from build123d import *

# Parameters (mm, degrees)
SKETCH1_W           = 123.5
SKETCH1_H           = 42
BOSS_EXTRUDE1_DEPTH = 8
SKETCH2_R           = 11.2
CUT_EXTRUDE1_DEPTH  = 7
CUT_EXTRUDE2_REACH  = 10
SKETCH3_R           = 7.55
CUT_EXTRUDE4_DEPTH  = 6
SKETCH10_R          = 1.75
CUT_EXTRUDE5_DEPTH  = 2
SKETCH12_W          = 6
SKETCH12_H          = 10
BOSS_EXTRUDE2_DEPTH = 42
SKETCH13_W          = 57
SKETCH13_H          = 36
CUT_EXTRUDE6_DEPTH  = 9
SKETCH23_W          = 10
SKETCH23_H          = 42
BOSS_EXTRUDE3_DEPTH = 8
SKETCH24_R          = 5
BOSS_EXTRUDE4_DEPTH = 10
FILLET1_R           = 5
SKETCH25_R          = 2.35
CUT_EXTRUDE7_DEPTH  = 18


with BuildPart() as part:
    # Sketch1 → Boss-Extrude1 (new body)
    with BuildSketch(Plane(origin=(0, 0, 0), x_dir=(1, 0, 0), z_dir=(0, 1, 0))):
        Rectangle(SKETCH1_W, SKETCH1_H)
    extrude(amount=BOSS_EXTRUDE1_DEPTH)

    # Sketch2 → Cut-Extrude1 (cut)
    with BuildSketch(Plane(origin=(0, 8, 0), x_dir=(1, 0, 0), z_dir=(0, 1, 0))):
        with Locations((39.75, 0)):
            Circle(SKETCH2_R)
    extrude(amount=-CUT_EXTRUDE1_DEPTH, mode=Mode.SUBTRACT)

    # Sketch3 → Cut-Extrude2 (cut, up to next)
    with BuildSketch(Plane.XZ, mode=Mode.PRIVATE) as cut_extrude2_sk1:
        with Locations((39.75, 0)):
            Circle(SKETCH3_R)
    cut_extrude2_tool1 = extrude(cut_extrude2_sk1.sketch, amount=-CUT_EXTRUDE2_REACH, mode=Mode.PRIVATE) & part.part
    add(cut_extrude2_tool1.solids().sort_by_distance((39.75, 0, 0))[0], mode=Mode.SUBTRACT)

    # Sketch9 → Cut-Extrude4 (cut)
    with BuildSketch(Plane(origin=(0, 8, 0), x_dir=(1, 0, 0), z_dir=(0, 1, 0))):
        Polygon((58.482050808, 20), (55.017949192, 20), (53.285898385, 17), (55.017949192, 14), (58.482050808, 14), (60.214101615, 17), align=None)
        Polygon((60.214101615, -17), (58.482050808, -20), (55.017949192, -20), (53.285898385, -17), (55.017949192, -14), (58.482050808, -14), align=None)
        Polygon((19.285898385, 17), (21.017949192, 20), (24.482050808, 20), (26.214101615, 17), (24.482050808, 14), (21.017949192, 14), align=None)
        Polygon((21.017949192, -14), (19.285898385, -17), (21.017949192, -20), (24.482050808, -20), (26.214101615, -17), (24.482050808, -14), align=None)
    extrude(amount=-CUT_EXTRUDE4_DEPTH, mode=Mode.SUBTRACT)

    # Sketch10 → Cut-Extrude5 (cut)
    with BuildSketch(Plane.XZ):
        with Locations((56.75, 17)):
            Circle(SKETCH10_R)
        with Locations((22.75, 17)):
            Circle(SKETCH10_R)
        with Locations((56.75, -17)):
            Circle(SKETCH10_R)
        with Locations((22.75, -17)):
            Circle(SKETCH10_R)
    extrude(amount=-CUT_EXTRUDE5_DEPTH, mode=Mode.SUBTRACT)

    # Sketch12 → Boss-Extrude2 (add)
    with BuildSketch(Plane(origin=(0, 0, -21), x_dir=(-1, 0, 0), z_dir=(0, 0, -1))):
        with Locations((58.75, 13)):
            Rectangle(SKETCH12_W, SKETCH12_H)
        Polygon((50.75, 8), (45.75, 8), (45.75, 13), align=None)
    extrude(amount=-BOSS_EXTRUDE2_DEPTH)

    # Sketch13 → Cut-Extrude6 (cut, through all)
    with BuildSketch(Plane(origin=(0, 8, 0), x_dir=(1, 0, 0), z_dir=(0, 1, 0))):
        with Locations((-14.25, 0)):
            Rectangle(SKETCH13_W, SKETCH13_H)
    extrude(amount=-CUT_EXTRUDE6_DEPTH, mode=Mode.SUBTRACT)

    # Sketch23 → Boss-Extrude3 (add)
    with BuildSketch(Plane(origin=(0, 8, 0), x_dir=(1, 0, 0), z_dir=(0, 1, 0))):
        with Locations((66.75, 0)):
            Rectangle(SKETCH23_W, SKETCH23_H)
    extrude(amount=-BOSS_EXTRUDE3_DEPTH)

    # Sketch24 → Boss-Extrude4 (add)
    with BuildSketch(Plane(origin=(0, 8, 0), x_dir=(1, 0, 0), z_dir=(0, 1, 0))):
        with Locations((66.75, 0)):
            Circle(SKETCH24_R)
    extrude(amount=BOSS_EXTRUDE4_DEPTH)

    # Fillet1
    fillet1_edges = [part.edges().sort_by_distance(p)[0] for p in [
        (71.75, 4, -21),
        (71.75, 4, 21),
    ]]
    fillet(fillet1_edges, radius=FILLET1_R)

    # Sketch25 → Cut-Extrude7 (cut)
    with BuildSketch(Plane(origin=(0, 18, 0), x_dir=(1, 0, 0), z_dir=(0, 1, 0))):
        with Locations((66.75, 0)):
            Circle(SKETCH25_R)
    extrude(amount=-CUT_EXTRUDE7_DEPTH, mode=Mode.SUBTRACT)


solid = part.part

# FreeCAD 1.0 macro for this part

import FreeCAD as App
import Part
import Sketcher

V = App.Vector
Q = App.Units.Quantity


def edges_at(feature, points):
    """Names of the edges that pass closest to the given points."""
    edges = feature.Shape.Edges
    near = lambda p: min(range(len(edges)), key=lambda i: edges[i].distToShape(Part.Vertex(*p))[0])
    return sorted({f"Edge{near(p) + 1}" for p in points})

doc = App.newDocument("Part")
body = doc.addObject("PartDesign::Body", "Body")

# Sketch on XZ plane
sketch1 = body.newObject("Sketcher::SketchObject", "Sketch")
sketch1.AttachmentSupport = (doc.getObject("XZ_Plane"), [""])
sketch1.MapMode = "FlatFace"
sketch1.addGeometry([
    Part.LineSegment(V(-62, -21, 0), V(-62, 21, 0)),
    Part.LineSegment(V(-62, 21, 0), V(62, 21, 0)),
    Part.LineSegment(V(62, 21, 0), V(62, -21, 0)),
    Part.LineSegment(V(62, -21, 0), V(-62, -21, 0)),
], False)
sketch1.addConstraint([
    Sketcher.Constraint("Coincident", 0, 2, 1, 1),
    Sketcher.Constraint("Coincident", 1, 2, 2, 1),
    Sketcher.Constraint("Coincident", 2, 2, 3, 1),
    Sketcher.Constraint("Coincident", 3, 2, 0, 1),
    Sketcher.Constraint("Vertical", 0),
    Sketcher.Constraint("Horizontal", 1),
    Sketcher.Constraint("Vertical", 2),
    Sketcher.Constraint("Horizontal", 3),
    Sketcher.Constraint("Symmetric", 0, 2, 2, 2, -1, 1),
    Sketcher.Constraint("DistanceY", 0, 1, 0, 2, 42.0),
    Sketcher.Constraint("DistanceX", 1, 1, 1, 2, 123.5),
])
pad1 = body.newObject("PartDesign::Pad", "Pad")
pad1.Profile = sketch1
pad1.Length = 8
pad1.Reversed = True

# Sketch on XZ plane
sketch2 = body.newObject("Sketcher::SketchObject", "Sketch001")
sketch2.AttachmentSupport = (doc.getObject("XZ_Plane"), [""])
sketch2.MapMode = "FlatFace"
sketch2.AttachmentOffset = App.Placement(V(0, 0, -8), App.Rotation())
sketch2.addGeometry(Part.Circle(V(40, 0, 0), V(0, 0, 1), 11), False)
sketch2.addConstraint([
    Sketcher.Constraint("PointOnObject", 0, 3, -1),
    Sketcher.Constraint("Diameter", 0, 22.4),
    Sketcher.Constraint("DistanceX", -1, 1, 0, 3, 39.75),
])
pocket1 = body.newObject("PartDesign::Pocket", "Pocket")
pocket1.Profile = sketch2
pocket1.Length = 7
pocket1.Reversed = True

# Sketch on XZ plane
sketch3 = body.newObject("Sketcher::SketchObject", "Sketch002")
sketch3.AttachmentSupport = (doc.getObject("XZ_Plane"), [""])
sketch3.MapMode = "FlatFace"
sketch3.addGeometry(Part.Circle(V(40, 0, 0), V(0, 0, 1), 8), False)
sketch3.addConstraint([
    Sketcher.Constraint("PointOnObject", 0, 3, -1),
    Sketcher.Constraint("Diameter", 0, 15.1),
    Sketcher.Constraint("DistanceX", -1, 1, 0, 3, 39.75),
])
pocket2 = body.newObject("PartDesign::Pocket", "Pocket001")
pocket2.Profile = sketch3
pocket2.Type = "UpToFirst"

# Sketch on XZ plane
sketch4 = body.newObject("Sketcher::SketchObject", "Sketch003")
sketch4.AttachmentSupport = (doc.getObject("XZ_Plane"), [""])
sketch4.MapMode = "FlatFace"
sketch4.AttachmentOffset = App.Placement(V(0, 0, -8), App.Rotation())
sketch4.addGeometry([
    Part.LineSegment(V(58.5, -20, 0), V(55, -20, 0)),  # 0
    Part.LineSegment(V(55, -20, 0), V(53.3, -17, 0)),  # 1
    Part.LineSegment(V(53.3, -17, 0), V(55, -14, 0)),  # 2
    Part.LineSegment(V(55, -14, 0), V(58.5, -14, 0)),  # 3
    Part.LineSegment(V(58.5, -14, 0), V(60.2, -17, 0)),  # 4
    Part.LineSegment(V(60.2, -17, 0), V(58.5, -20, 0)),  # 5
    Part.LineSegment(V(58.5, 20, 0), V(60.2, 17, 0)),  # 6
    Part.LineSegment(V(60.2, 17, 0), V(58.5, 14, 0)),  # 7
    Part.LineSegment(V(58.5, 14, 0), V(55, 14, 0)),  # 8
    Part.LineSegment(V(55, 14, 0), V(53.3, 17, 0)),  # 9
    Part.LineSegment(V(53.3, 17, 0), V(55, 20, 0)),  # 10
    Part.LineSegment(V(55, 20, 0), V(58.5, 20, 0)),  # 11
    Part.LineSegment(V(21, -20, 0), V(19.3, -17, 0)),  # 12
    Part.LineSegment(V(19.3, -17, 0), V(21, -14, 0)),  # 13
    Part.LineSegment(V(21, -14, 0), V(24.5, -14, 0)),  # 14
    Part.LineSegment(V(24.5, -14, 0), V(26.2, -17, 0)),  # 15
    Part.LineSegment(V(26.2, -17, 0), V(24.5, -20, 0)),  # 16
    Part.LineSegment(V(24.5, -20, 0), V(21, -20, 0)),  # 17
    Part.LineSegment(V(21, 14, 0), V(19.3, 17, 0)),  # 18
    Part.LineSegment(V(19.3, 17, 0), V(21, 20, 0)),  # 19
    Part.LineSegment(V(21, 20, 0), V(24.5, 20, 0)),  # 20
    Part.LineSegment(V(24.5, 20, 0), V(26.2, 17, 0)),  # 21
    Part.LineSegment(V(26.2, 17, 0), V(24.5, 14, 0)),  # 22
    Part.LineSegment(V(24.5, 14, 0), V(21, 14, 0)),  # 23
], False)
sketch4.addConstraint([
    Sketcher.Constraint("Coincident", 0, 2, 1, 1),
    Sketcher.Constraint("Coincident", 1, 2, 2, 1),
    Sketcher.Constraint("Coincident", 2, 2, 3, 1),
    Sketcher.Constraint("Coincident", 3, 2, 4, 1),
    Sketcher.Constraint("Coincident", 4, 2, 5, 1),
    Sketcher.Constraint("Coincident", 5, 2, 0, 1),
    Sketcher.Constraint("Coincident", 6, 2, 7, 1),
    Sketcher.Constraint("Coincident", 7, 2, 8, 1),
    Sketcher.Constraint("Coincident", 8, 2, 9, 1),
    Sketcher.Constraint("Coincident", 9, 2, 10, 1),
    Sketcher.Constraint("Coincident", 10, 2, 11, 1),
    Sketcher.Constraint("Coincident", 11, 2, 6, 1),
    Sketcher.Constraint("Coincident", 12, 2, 13, 1),
    Sketcher.Constraint("Coincident", 13, 2, 14, 1),
    Sketcher.Constraint("Coincident", 14, 2, 15, 1),
    Sketcher.Constraint("Coincident", 15, 2, 16, 1),
    Sketcher.Constraint("Coincident", 16, 2, 17, 1),
    Sketcher.Constraint("Coincident", 17, 2, 12, 1),
    Sketcher.Constraint("Coincident", 18, 2, 19, 1),
    Sketcher.Constraint("Coincident", 19, 2, 20, 1),
    Sketcher.Constraint("Coincident", 20, 2, 21, 1),
    Sketcher.Constraint("Coincident", 21, 2, 22, 1),
    Sketcher.Constraint("Coincident", 22, 2, 23, 1),
    Sketcher.Constraint("Coincident", 23, 2, 18, 1),
    Sketcher.Constraint("Horizontal", 0),
    Sketcher.Constraint("Horizontal", 3),
    Sketcher.Constraint("Horizontal", 8),
    Sketcher.Constraint("Horizontal", 11),
    Sketcher.Constraint("Horizontal", 14),
    Sketcher.Constraint("Horizontal", 17),
    Sketcher.Constraint("Horizontal", 20),
    Sketcher.Constraint("Horizontal", 23),
    Sketcher.Constraint("Symmetric", 4, 2, 6, 2, -1),
    Sketcher.Constraint("Symmetric", 3, 2, 7, 2, -1),
    Sketcher.Constraint("Symmetric", 1, 2, 9, 2, -1),
    Sketcher.Constraint("Symmetric", 0, 2, 10, 2, -1),
    Sketcher.Constraint("Symmetric", 12, 2, 18, 2, -1),
    Sketcher.Constraint("Symmetric", 17, 2, 19, 2, -1),
    Sketcher.Constraint("Symmetric", 15, 2, 21, 2, -1),
    Sketcher.Constraint("Symmetric", 14, 2, 22, 2, -1),
    Sketcher.Constraint("Parallel", 1, 4),
    Sketcher.Constraint("Parallel", 2, 5),
    Sketcher.Constraint("Parallel", 4, 6),
    Sketcher.Constraint("Parallel", 5, 7),
    Sketcher.Constraint("Parallel", 6, 9),
    Sketcher.Constraint("Parallel", 9, 12),
    Sketcher.Constraint("Parallel", 10, 13),
    Sketcher.Constraint("Parallel", 12, 15),
    Sketcher.Constraint("Parallel", 13, 16),
    Sketcher.Constraint("Parallel", 15, 18),
    Sketcher.Constraint("Parallel", 18, 21),
    Sketcher.Constraint("Horizontal", 1, 2, 4, 2),
    Sketcher.Constraint("Horizontal", 4, 2, 12, 2),
    Sketcher.Constraint("Horizontal", 3, 2, 13, 2),
    Sketcher.Constraint("Horizontal", 12, 2, 15, 2),
    Sketcher.Constraint("Horizontal", 5, 2, 16, 2),
    Sketcher.Constraint("Vertical", 0, 2, 2, 2),
    Sketcher.Constraint("Equal", 11, 14),
    Sketcher.Constraint("Angle", 1, Q("120 deg")),
    Sketcher.Constraint("DistanceY", 0, 2, -1, 1, 20.0),
    Sketcher.Constraint("DistanceY", 1, 2, -1, 1, 17.0),
    Sketcher.Constraint("DistanceX", 12, 2, 1, 2, 34.0),
    Sketcher.Constraint("DistanceX", 0, 2, 0, 1, 3.464102),
    Sketcher.Constraint("DistanceX", -1, 1, 1, 2, 53.285898),
])
pocket3 = body.newObject("PartDesign::Pocket", "Pocket002")
pocket3.Profile = sketch4
pocket3.Length = 6
pocket3.Reversed = True

# Sketch on XZ plane
sketch5 = body.newObject("Sketcher::SketchObject", "Sketch004")
sketch5.AttachmentSupport = (doc.getObject("XZ_Plane"), [""])
sketch5.MapMode = "FlatFace"
sketch5.addGeometry([
    Part.Circle(V(56.8, 17, 0), V(0, 0, 1), 1.8),
    Part.Circle(V(22.8, 17, 0), V(0, 0, 1), 1.8),
    Part.Circle(V(56.8, -17, 0), V(0, 0, 1), 1.8),
    Part.Circle(V(22.8, -17, 0), V(0, 0, 1), 1.8),
], False)
sketch5.addConstraint([
    Sketcher.Constraint("Equal", 0, 1),
    Sketcher.Constraint("Equal", 1, 2),
    Sketcher.Constraint("Equal", 2, 3),
    Sketcher.Constraint("Symmetric", 0, 3, 2, 3, -1),
    Sketcher.Constraint("Symmetric", 1, 3, 3, 3, -1),
    Sketcher.Constraint("Horizontal", 0, 3, 1, 3),
    Sketcher.Constraint("Diameter", 0, 3.5),
    Sketcher.Constraint("DistanceY", -1, 1, 0, 3, 17.0),
    Sketcher.Constraint("DistanceX", 1, 3, 0, 3, 34.0),
    Sketcher.Constraint("DistanceX", -1, 1, 0, 3, 56.75),
])
pocket4 = body.newObject("PartDesign::Pocket", "Pocket003")
pocket4.Profile = sketch5
pocket4.Length = 2

# Sketch on XY plane
sketch6 = body.newObject("Sketcher::SketchObject", "Sketch005")
sketch6.AttachmentSupport = (doc.getObject("XY_Plane"), [""])
sketch6.MapMode = "FlatFace"
sketch6.AttachmentOffset = App.Placement(V(0, 0, -21), App.Rotation())
sketch6.addGeometry([
    Part.LineSegment(V(-56, 18, 0), V(-56, 8, 0)),  # 0
    Part.LineSegment(V(-56, 8, 0), V(-62, 8, 0)),  # 1
    Part.LineSegment(V(-62, 8, 0), V(-62, 18, 0)),  # 2
    Part.LineSegment(V(-62, 18, 0), V(-56, 18, 0)),  # 3
    Part.LineSegment(V(-46, 8, 0), V(-51, 8, 0)),  # 4
    Part.LineSegment(V(-51, 8, 0), V(-46, 13, 0)),  # 5
    Part.LineSegment(V(-46, 13, 0), V(-46, 8, 0)),  # 6
], False)
sketch6.addConstraint([
    Sketcher.Constraint("Coincident", 0, 2, 1, 1),
    Sketcher.Constraint("Coincident", 1, 2, 2, 1),
    Sketcher.Constraint("Coincident", 2, 2, 3, 1),
    Sketcher.Constraint("Coincident", 3, 2, 0, 1),
    Sketcher.Constraint("Coincident", 4, 2, 5, 1),
    Sketcher.Constraint("Coincident", 5, 2, 6, 1),
    Sketcher.Constraint("Coincident", 6, 2, 4, 1),
    Sketcher.Constraint("Vertical", 0),
    Sketcher.Constraint("Horizontal", 1),
    Sketcher.Constraint("Vertical", 2),
    Sketcher.Constraint("Horizontal", 3),
    Sketcher.Constraint("Horizontal", 4),
    Sketcher.Constraint("Vertical", 6),
    Sketcher.Constraint("Horizontal", 1, 2, 4, 2),
    Sketcher.Constraint("Equal", 4, 6),
    Sketcher.Constraint("DistanceX", 1, 2, 1, 1, 6.0),
    Sketcher.Constraint("DistanceX", 4, 2, 4, 1, 5.0),
    Sketcher.Constraint("DistanceY", 0, 2, 0, 1, 10.0),
    Sketcher.Constraint("DistanceY", -1, 1, 0, 2, 8.0),
    Sketcher.Constraint("DistanceX", 0, 2, 4, 2, 5.0),
    Sketcher.Constraint("DistanceX", 0, 2, -1, 1, 55.75),
])
pad2 = body.newObject("PartDesign::Pad", "Pad001")
pad2.Profile = sketch6
pad2.Length = 42

# Sketch on XZ plane
sketch7 = body.newObject("Sketcher::SketchObject", "Sketch006")
sketch7.AttachmentSupport = (doc.getObject("XZ_Plane"), [""])
sketch7.MapMode = "FlatFace"
sketch7.AttachmentOffset = App.Placement(V(0, 0, -8), App.Rotation())
sketch7.addGeometry([
    Part.LineSegment(V(-43, -18, 0), V(-43, 18, 0)),
    Part.LineSegment(V(-43, 18, 0), V(14, 18, 0)),
    Part.LineSegment(V(14, 18, 0), V(14, -18, 0)),
    Part.LineSegment(V(14, -18, 0), V(-43, -18, 0)),
], False)
sketch7.addConstraint([
    Sketcher.Constraint("Coincident", 0, 2, 1, 1),
    Sketcher.Constraint("Coincident", 1, 2, 2, 1),
    Sketcher.Constraint("Coincident", 2, 2, 3, 1),
    Sketcher.Constraint("Coincident", 3, 2, 0, 1),
    Sketcher.Constraint("Vertical", 0),
    Sketcher.Constraint("Horizontal", 1),
    Sketcher.Constraint("Vertical", 2),
    Sketcher.Constraint("Horizontal", 3),
    Sketcher.Constraint("DistanceX", 1, 1, 1, 2, 57.0),
    Sketcher.Constraint("DistanceY", 0, 1, 0, 2, 36.0),
    Sketcher.Constraint("DistanceY", -1, 1, 0, 2, 18.0),
    Sketcher.Constraint("DistanceX", 0, 2, -1, 1, 42.75),
])
pocket5 = body.newObject("PartDesign::Pocket", "Pocket004")
pocket5.Profile = sketch7
pocket5.Type = "ThroughAll"
pocket5.Reversed = True

# Sketch on XZ plane
sketch8 = body.newObject("Sketcher::SketchObject", "Sketch007")
sketch8.AttachmentSupport = (doc.getObject("XZ_Plane"), [""])
sketch8.MapMode = "FlatFace"
sketch8.AttachmentOffset = App.Placement(V(0, 0, -8), App.Rotation())
sketch8.addGeometry([
    Part.LineSegment(V(62, -21, 0), V(62, 21, 0)),
    Part.LineSegment(V(62, 21, 0), V(72, 21, 0)),
    Part.LineSegment(V(72, 21, 0), V(72, -21, 0)),
    Part.LineSegment(V(72, -21, 0), V(62, -21, 0)),
], False)
sketch8.addConstraint([
    Sketcher.Constraint("Coincident", 0, 2, 1, 1),
    Sketcher.Constraint("Coincident", 1, 2, 2, 1),
    Sketcher.Constraint("Coincident", 2, 2, 3, 1),
    Sketcher.Constraint("Coincident", 3, 2, 0, 1),
    Sketcher.Constraint("Vertical", 0),
    Sketcher.Constraint("Horizontal", 1),
    Sketcher.Constraint("Vertical", 2),
    Sketcher.Constraint("Horizontal", 3),
    Sketcher.Constraint("DistanceX", 1, 1, 1, 2, 10.0),
    Sketcher.Constraint("DistanceY", 0, 1, 0, 2, 42.0),
    Sketcher.Constraint("DistanceY", -1, 1, 0, 2, 21.0),
    Sketcher.Constraint("DistanceX", -1, 1, 0, 2, 61.75),
])
pad3 = body.newObject("PartDesign::Pad", "Pad002")
pad3.Profile = sketch8
pad3.Length = 8

# Sketch on XZ plane
sketch9 = body.newObject("Sketcher::SketchObject", "Sketch008")
sketch9.AttachmentSupport = (doc.getObject("XZ_Plane"), [""])
sketch9.MapMode = "FlatFace"
sketch9.AttachmentOffset = App.Placement(V(0, 0, -8), App.Rotation())
sketch9.addGeometry(Part.Circle(V(67, 0, 0), V(0, 0, 1), 5), False)
sketch9.addConstraint([
    Sketcher.Constraint("PointOnObject", 0, 3, -1),
    Sketcher.Constraint("Diameter", 0, 10.0),
    Sketcher.Constraint("DistanceX", -1, 1, 0, 3, 66.75),
])
pad4 = body.newObject("PartDesign::Pad", "Pad003")
pad4.Profile = sketch9
pad4.Length = 10
pad4.Reversed = True
doc.recompute()

fillet = body.newObject("PartDesign::Fillet", "Fillet")
fillet.Base = (pad4, edges_at(pad4, [(71.75, 4, -21), (71.75, 4, 21)]))
fillet.Radius = 5

# Sketch on XZ plane
sketch10 = body.newObject("Sketcher::SketchObject", "Sketch009")
sketch10.AttachmentSupport = (doc.getObject("XZ_Plane"), [""])
sketch10.MapMode = "FlatFace"
sketch10.AttachmentOffset = App.Placement(V(0, 0, -18), App.Rotation())
sketch10.addGeometry(Part.Circle(V(66.8, 0, 0), V(0, 0, 1), 2.4), False)
sketch10.addConstraint([
    Sketcher.Constraint("PointOnObject", 0, 3, -1),
    Sketcher.Constraint("Diameter", 0, 4.7),
    Sketcher.Constraint("DistanceX", -1, 1, 0, 3, 66.75),
])
pocket6 = body.newObject("PartDesign::Pocket", "Pocket005")
pocket6.Profile = sketch10
pocket6.Length = 18
pocket6.Reversed = True

doc.recompute()
